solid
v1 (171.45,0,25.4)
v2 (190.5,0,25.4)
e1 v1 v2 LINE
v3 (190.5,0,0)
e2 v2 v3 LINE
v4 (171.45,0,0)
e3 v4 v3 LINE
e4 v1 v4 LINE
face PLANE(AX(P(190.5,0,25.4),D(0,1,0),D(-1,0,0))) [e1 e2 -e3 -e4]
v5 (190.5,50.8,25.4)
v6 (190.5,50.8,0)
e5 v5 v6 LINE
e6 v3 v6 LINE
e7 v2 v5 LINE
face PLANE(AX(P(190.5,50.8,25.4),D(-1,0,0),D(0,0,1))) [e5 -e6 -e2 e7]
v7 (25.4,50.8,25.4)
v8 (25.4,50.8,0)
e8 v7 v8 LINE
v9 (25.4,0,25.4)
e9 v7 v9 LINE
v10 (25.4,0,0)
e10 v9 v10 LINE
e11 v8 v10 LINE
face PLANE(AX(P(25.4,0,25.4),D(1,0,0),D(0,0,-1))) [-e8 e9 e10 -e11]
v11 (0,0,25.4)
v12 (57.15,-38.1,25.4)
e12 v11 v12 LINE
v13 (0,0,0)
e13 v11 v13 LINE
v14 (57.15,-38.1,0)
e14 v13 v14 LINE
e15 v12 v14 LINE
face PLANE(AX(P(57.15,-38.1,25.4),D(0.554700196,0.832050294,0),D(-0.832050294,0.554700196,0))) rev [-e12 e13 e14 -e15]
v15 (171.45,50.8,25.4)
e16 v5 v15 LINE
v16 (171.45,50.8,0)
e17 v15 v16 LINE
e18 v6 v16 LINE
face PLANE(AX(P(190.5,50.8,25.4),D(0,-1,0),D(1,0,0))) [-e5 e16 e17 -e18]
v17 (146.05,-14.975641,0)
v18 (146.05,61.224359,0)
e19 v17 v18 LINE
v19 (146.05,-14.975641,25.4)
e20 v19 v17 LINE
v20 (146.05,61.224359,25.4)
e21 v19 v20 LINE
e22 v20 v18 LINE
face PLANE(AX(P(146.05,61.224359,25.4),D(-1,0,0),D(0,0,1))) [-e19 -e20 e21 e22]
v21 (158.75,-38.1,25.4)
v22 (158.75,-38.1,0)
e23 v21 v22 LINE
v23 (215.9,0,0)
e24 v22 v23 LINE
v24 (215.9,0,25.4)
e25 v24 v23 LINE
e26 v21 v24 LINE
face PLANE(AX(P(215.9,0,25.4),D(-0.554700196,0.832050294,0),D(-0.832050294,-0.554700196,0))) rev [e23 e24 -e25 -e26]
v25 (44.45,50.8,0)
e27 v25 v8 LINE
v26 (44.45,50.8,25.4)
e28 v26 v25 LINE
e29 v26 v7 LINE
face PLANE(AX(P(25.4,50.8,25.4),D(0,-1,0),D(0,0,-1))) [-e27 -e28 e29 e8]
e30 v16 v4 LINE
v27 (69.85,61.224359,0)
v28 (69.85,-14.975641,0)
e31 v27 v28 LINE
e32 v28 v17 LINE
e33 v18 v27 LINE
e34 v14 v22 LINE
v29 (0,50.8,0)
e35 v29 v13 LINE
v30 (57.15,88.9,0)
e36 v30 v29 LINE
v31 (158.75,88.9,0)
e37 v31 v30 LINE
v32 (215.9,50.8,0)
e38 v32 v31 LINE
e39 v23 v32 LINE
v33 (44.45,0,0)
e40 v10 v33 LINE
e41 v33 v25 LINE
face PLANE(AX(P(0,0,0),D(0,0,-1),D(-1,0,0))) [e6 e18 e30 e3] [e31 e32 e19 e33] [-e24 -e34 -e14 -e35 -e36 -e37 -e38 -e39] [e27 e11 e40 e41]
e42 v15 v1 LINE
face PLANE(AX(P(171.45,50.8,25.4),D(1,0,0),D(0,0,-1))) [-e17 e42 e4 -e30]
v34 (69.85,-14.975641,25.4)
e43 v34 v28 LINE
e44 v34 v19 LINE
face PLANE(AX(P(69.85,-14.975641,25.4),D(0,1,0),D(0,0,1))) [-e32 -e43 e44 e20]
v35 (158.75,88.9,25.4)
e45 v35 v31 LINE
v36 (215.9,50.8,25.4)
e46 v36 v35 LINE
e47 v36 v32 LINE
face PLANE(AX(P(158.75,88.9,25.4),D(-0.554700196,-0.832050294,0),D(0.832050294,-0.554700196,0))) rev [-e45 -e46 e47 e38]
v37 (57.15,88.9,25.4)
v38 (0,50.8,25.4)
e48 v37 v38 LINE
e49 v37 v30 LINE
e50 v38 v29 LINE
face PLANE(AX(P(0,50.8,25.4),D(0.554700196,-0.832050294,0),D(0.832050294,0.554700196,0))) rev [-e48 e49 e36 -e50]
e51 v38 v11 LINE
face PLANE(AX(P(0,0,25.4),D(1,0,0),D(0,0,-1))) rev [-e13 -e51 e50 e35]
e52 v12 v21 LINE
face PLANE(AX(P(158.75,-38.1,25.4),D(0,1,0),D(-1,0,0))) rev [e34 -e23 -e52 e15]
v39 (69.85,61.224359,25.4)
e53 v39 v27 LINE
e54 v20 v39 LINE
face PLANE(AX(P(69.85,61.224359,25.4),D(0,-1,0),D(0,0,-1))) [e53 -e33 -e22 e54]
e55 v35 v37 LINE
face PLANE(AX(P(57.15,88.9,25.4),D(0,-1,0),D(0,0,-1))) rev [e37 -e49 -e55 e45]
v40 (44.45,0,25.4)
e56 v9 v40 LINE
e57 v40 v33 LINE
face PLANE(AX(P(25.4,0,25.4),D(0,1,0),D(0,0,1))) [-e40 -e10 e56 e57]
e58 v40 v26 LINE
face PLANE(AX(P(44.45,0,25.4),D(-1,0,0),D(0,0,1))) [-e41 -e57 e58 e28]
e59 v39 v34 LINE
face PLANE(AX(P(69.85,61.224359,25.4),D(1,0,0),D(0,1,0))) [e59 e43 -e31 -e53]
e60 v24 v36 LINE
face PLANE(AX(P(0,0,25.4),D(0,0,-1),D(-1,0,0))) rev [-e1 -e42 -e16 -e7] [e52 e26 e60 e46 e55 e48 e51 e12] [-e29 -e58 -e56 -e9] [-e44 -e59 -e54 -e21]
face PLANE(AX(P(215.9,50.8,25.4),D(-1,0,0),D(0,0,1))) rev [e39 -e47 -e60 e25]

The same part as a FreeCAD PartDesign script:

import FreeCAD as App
import Part
import Sketcher
from FreeCAD import Vector
Q = App.Units.Quantity

doc = App.newDocument("Part")
body = doc.addObject("PartDesign::Body", "Body")

# Sketch on XY plane
sketch1 = body.newObject("Sketcher::SketchObject", "Sketch")
sketch1.AttachmentSupport = (doc.getObject("XY_Plane"), [""])
sketch1.MapMode = "FlatFace"
sketch1.addGeometry(Part.LineSegment(Vector(0, 50.8, 0), Vector(0, 0, 0)), False)
sketch1.addGeometry(Part.LineSegment(Vector(0, 0, 0), Vector(57.15, -38.1, 0)), False)
sketch1.addGeometry(Part.LineSegment(Vector(57.15, -38.1, 0), Vector(158.75, -38.1, 0)), False)
sketch1.addGeometry(Part.LineSegment(Vector(158.75, -38.1, 0), Vector(215.9, 0, 0)), False)
sketch1.addGeometry(Part.LineSegment(Vector(215.9, 0, 0), Vector(215.9, 50.8, 0)), False)
sketch1.addGeometry(Part.LineSegment(Vector(215.9, 50.8, 0), Vector(158.75, 88.9, 0)), False)
sketch1.addGeometry(Part.LineSegment(Vector(158.75, 88.9, 0), Vector(57.15, 88.9, 0)), False)
sketch1.addGeometry(Part.LineSegment(Vector(57.15, 88.9, 0), Vector(0, 50.8, 0)), False)
sketch1.addGeometry(Part.LineSegment(Vector(171.45, 0, 0), Vector(171.45, 50.8, 0)), False)
sketch1.addGeometry(Part.LineSegment(Vector(171.45, 50.8, 0), Vector(190.5, 50.8, 0)), False)
sketch1.addGeometry(Part.LineSegment(Vector(190.5, 50.8, 0), Vector(190.5, 0, 0)), False)
sketch1.addGeometry(Part.LineSegment(Vector(190.5, 0, 0), Vector(171.45, 0, 0)), False)
sketch1.addGeometry(Part.LineSegment(Vector(69.85, -14.975641, 0), Vector(69.85, 61.224359, 0)), False)
sketch1.addGeometry(Part.LineSegment(Vector(69.85, 61.224359, 0), Vector(146.05, 61.224359, 0)), False)
sketch1.addGeometry(Part.LineSegment(Vector(146.05, 61.224359, 0), Vector(146.05, -14.975641, 0)), False)
sketch1.addGeometry(Part.LineSegment(Vector(146.05, -14.975641, 0), Vector(69.85, -14.975641, 0)), False)
sketch1.addGeometry(Part.LineSegment(Vector(25.4, 0, 0), Vector(25.4, 50.8, 0)), False)
sketch1.addGeometry(Part.LineSegment(Vector(25.4, 50.8, 0), Vector(44.45, 50.8, 0)), False)
sketch1.addGeometry(Part.LineSegment(Vector(44.45, 50.8, 0), Vector(44.45, 0, 0)), False)
sketch1.addGeometry(Part.LineSegment(Vector(44.45, 0, 0), Vector(25.4, 0, 0)), False)
sketch1.addConstraint(Sketcher.Constraint("Coincident", 0, 2, 1, 1))
sketch1.addConstraint(Sketcher.Constraint("Coincident", 1, 2, 2, 1))
sketch1.addConstraint(Sketcher.Constraint("Coincident", 2, 2, 3, 1))
sketch1.addConstraint(Sketcher.Constraint("Coincident", 3, 2, 4, 1))
sketch1.addConstraint(Sketcher.Constraint("Coincident", 4, 2, 5, 1))
sketch1.addConstraint(Sketcher.Constraint("Coincident", 5, 2, 6, 1))
sketch1.addConstraint(Sketcher.Constraint("Coincident", 6, 2, 7, 1))
sketch1.addConstraint(Sketcher.Constraint("Coincident", 7, 2, 0, 1))
sketch1.addConstraint(Sketcher.Constraint("Coincident", 8, 2, 9, 1))
sketch1.addConstraint(Sketcher.Constraint("Coincident", 9, 2, 10, 1))
sketch1.addConstraint(Sketcher.Constraint("Coincident", 10, 2, 11, 1))
sketch1.addConstraint(Sketcher.Constraint("Coincident", 11, 2, 8, 1))
sketch1.addConstraint(Sketcher.Constraint("Coincident", 12, 2, 13, 1))
sketch1.addConstraint(Sketcher.Constraint("Coincident", 13, 2, 14, 1))
sketch1.addConstraint(Sketcher.Constraint("Coincident", 14, 2, 15, 1))
sketch1.addConstraint(Sketcher.Constraint("Coincident", 15, 2, 12, 1))
sketch1.addConstraint(Sketcher.Constraint("Coincident", 16, 2, 17, 1))
sketch1.addConstraint(Sketcher.Constraint("Coincident", 17, 2, 18, 1))
sketch1.addConstraint(Sketcher.Constraint("Coincident", 18, 2, 19, 1))
sketch1.addConstraint(Sketcher.Constraint("Coincident", 19, 2, 16, 1))
sketch1.addConstraint(Sketcher.Constraint("Vertical", 0))
sketch1.addConstraint(Sketcher.Constraint("Horizontal", 2))
sketch1.addConstraint(Sketcher.Constraint("Vertical", 4))
sketch1.addConstraint(Sketcher.Constraint("Horizontal", 6))
sketch1.addConstraint(Sketcher.Constraint("Vertical", 8))
sketch1.addConstraint(Sketcher.Constraint("Horizontal", 9))
sketch1.addConstraint(Sketcher.Constraint("Vertical", 10))
sketch1.addConstraint(Sketcher.Constraint("Horizontal", 11))
sketch1.addConstraint(Sketcher.Constraint("Vertical", 12))
sketch1.addConstraint(Sketcher.Constraint("Horizontal", 13))
sketch1.addConstraint(Sketcher.Constraint("Vertical", 14))
sketch1.addConstraint(Sketcher.Constraint("Horizontal", 15))
sketch1.addConstraint(Sketcher.Constraint("Vertical", 16))
sketch1.addConstraint(Sketcher.Constraint("Horizontal", 17))
sketch1.addConstraint(Sketcher.Constraint("Vertical", 18))
sketch1.addConstraint(Sketcher.Constraint("Horizontal", 19))
sketch1.addConstraint(Sketcher.Constraint("Coincident", 0, 2, -1, 1))
sketch1.addConstraint(Sketcher.Constraint("PointOnObject", 3, 2, -1))
sketch1.addConstraint(Sketcher.Constraint("PointOnObject", 10, 2, -1))
sketch1.addConstraint(Sketcher.Constraint("PointOnObject", 18, 2, -1))
sketch1.addConstraint(Sketcher.Constraint("Parallel", 1, 5))
sketch1.addConstraint(Sketcher.Constraint("Parallel", 3, 7))
sketch1.addConstraint(Sketcher.Constraint("Horizontal", 4, 2, 7, 2))
sketch1.addConstraint(Sketcher.Constraint("Horizontal", 7, 2, 8, 2))
sketch1.addConstraint(Sketcher.Constraint("Horizontal", 9, 2, 16, 2))
sketch1.addConstraint(Sketcher.Constraint("Vertical", 2, 2, 5, 2))
sketch1.addConstraint(Sketcher.Constraint("Vertical", 1, 2, 6, 2))
sketch1.addConstraint(Sketcher.Constraint("Equal", 11, 17))
sketch1.addConstraint(Sketcher.Constraint("Equal", 15, 12))
sketch1.addConstraint(Sketcher.Constraint("DistanceX", 2, 1, 2, 2, Q("4 in")))
sketch1.addConstraint(Sketcher.Constraint("DistanceX", 13, 1, 13, 2, Q("3 in")))
sketch1.addConstraint(Sketcher.Constraint("DistanceY", 0, 2, 0, 1, Q("2 in")))
sketch1.addConstraint(Sketcher.Constraint("DistanceX", -1, 1, 16, 2, Q("1 in")))
sketch1.addConstraint(Sketcher.Constraint("DistanceY", 2, 2, 5, 2, Q("5 in")))
sketch1.addConstraint(Sketcher.Constraint("DistanceX", 9, 2, 4, 2, Q("1 in")))
sketch1.addConstraint(Sketcher.Constraint("DistanceX", 13, 2, 8, 2, Q("1 in")))
sketch1.addConstraint(Sketcher.Constraint("DistanceX", 17, 2, 12, 2, Q("1 in")))
sketch1.addConstraint(Sketcher.Constraint("DistanceX", 9, 1, 9, 2, Q("0.75 in")))
sketch1.addConstraint(Sketcher.Constraint("DistanceY", -1, 1, 12, 2, Q("61.224359 mm")))
pad1 = body.newObject("PartDesign::Pad", "Pad")
pad1.Profile = sketch1
pad1.Length = Q("1 in")

doc.recompute()
